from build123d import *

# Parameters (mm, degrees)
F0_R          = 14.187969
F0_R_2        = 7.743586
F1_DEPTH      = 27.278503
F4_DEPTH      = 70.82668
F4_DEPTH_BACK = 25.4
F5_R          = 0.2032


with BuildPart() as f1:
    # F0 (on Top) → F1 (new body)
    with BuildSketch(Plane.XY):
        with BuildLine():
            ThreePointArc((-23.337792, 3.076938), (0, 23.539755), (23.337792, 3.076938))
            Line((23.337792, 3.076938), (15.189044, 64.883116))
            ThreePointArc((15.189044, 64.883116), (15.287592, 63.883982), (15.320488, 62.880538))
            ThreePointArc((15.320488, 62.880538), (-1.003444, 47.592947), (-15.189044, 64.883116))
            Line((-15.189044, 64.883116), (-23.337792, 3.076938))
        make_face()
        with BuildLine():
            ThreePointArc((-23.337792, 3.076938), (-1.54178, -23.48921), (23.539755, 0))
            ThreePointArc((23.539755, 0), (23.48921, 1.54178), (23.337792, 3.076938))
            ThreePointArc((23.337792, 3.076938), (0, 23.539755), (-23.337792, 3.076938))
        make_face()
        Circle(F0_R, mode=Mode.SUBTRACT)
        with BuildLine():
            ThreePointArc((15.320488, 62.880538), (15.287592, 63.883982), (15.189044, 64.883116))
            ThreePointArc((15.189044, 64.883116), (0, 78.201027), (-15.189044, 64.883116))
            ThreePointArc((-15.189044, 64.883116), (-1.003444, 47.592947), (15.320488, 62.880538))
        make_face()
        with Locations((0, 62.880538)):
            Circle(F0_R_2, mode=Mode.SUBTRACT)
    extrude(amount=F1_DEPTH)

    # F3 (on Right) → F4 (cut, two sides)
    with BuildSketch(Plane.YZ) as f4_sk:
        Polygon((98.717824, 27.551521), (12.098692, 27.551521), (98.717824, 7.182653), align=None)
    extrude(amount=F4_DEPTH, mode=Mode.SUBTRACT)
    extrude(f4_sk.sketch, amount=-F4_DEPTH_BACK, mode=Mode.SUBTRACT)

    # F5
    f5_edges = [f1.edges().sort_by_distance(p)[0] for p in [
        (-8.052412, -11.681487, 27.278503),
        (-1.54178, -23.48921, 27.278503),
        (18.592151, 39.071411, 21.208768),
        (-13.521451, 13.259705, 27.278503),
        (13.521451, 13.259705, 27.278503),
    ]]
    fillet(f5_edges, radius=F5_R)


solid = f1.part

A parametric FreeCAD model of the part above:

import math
import FreeCAD as App
import Part
import Sketcher

V = App.Vector
Q = App.Units.Quantity


def edges_at(feature, points):
    """Names of the edges that pass closest to the given points."""
    edges = feature.Shape.Edges
    near = lambda p: min(range(len(edges)), key=lambda i: edges[i].distToShape(Part.Vertex(*p))[0])
    return sorted({f"Edge{near(p) + 1}" for p in points})


def add_polygon(sketch, points):
    """Adds a closed chain of lines whose ends are joined by coincident constraints."""
    first, n = sketch.GeometryCount, len(points)
    for a, b in zip(points, points[1:] + points[:1]):
        sketch.addGeometry(Part.LineSegment(App.Vector(*a, 0), App.Vector(*b, 0)), False)
    for i in range(n):
        sketch.addConstraint(Sketcher.Constraint("Coincident", first + i, 2, first + (i + 1) % n, 1))

doc = App.newDocument("Part")
body = doc.addObject("PartDesign::Body", "Body")

# Sketch on XY plane
sketch1 = body.newObject("Sketcher::SketchObject", "Sketch")
sketch1.AttachmentSupport = (doc.getObject("XY_Plane"), [""])
sketch1.MapMode = "FlatFace"
sketch1.addGeometry(Part.LineSegment(V(23.337792, 3.076938, 0), V(15.189044, 64.883116, 0)), False)
sketch1.addGeometry(Part.ArcOfCircle(Part.Circle(V(0, 62.880538, 0), V(0, 0, 1), 15.320489), math.radians(7.510761), math.radians(172.489239)), False)
sketch1.addGeometry(Part.LineSegment(V(-15.189044, 64.883116, 0), V(-23.337792, 3.076938, 0)), False)
sketch1.addGeometry(Part.ArcOfCircle(Part.Circle(V(0, 0, 0), V(0, 0, 1), 23.539755), math.radians(172.489239), math.radians(360)), False)
sketch1.addGeometry(Part.ArcOfCircle(Part.Circle(V(-0.000022, 0.000001, 0), V(0, 0, 1), 23.539777), math.radians(-0.000003), math.radians(7.510751)), False)
sketch1.addGeometry(Part.Circle(V(0, 0, 0), V(0, 0, 1), 14.187969), False)
sketch1.addGeometry(Part.Circle(V(0, 62.880538, 0), V(0, 0, 1), 7.743586), False)
sketch1.addConstraint(Sketcher.Constraint("Coincident", 0, 2, 1, 1))
sketch1.addConstraint(Sketcher.Constraint("Coincident", 1, 2, 2, 1))
sketch1.addConstraint(Sketcher.Constraint("Coincident", 2, 2, 3, 1))
sketch1.addConstraint(Sketcher.Constraint("Coincident", 3, 2, 4, 1))
sketch1.addConstraint(Sketcher.Constraint("Coincident", 4, 2, 0, 1))
sketch1.addConstraint(Sketcher.Constraint("Coincident", 3, 3, -1, 1))
sketch1.addConstraint(Sketcher.Constraint("Coincident", 5, 3, -1, 1))
sketch1.addConstraint(Sketcher.Constraint("Coincident", 6, 3, 1, 3))
sketch1.addConstraint(Sketcher.Constraint("PointOnObject", 1, 3, -2))
sketch1.addConstraint(Sketcher.Constraint("PointOnObject", 4, 3, -1))
sketch1.addConstraint(Sketcher.Constraint("PointOnObject", 3, 2, -1))
sketch1.addConstraint(Sketcher.Constraint("Diameter", 5, 28.375938))
sketch1.addConstraint(Sketcher.Constraint("Diameter", 6, 15.487172))
sketch1.addConstraint(Sketcher.Constraint("Radius", 1, 15.320489))
sketch1.addConstraint(Sketcher.Constraint("Radius", 3, 23.539755))
sketch1.addConstraint(Sketcher.Constraint("Radius", 4, 23.539777))
sketch1.addConstraint(Sketcher.Constraint("DistanceY", 2, 2, 6, 3, 59.8036))
sketch1.addConstraint(Sketcher.Constraint("DistanceY", -1, 1, 1, 3, 62.880538))
sketch1.addConstraint(Sketcher.Constraint("DistanceY", -1, 1, 4, 2, 3.076938))
sketch1.addConstraint(Sketcher.Constraint("DistanceX", 2, 2, 1, 2, 8.148748))
sketch1.addConstraint(Sketcher.Constraint("DistanceX", 0, 2, 3, 2, 8.350711))
pad1 = body.newObject("PartDesign::Pad", "Pad")
pad1.Profile = sketch1
pad1.Length = 27.278503

# Sketch on YZ plane
sketch2 = body.newObject("Sketcher::SketchObject", "Sketch001")
sketch2.AttachmentSupport = (doc.getObject("YZ_Plane"), [""])
sketch2.MapMode = "FlatFace"
add_polygon(sketch2, [(98.717824, 27.551521), (12.098692, 27.551521), (98.717824, 7.182653)])  # lines 0-2
sketch2.addConstraint(Sketcher.Constraint("Horizontal", 0))
sketch2.addConstraint(Sketcher.Constraint("Vertical", 2))
sketch2.addConstraint(Sketcher.Constraint("DistanceX", 0, 2, 0, 1, 86.619132))
sketch2.addConstraint(Sketcher.Constraint("DistanceY", 2, 1, 2, 2, 20.368868))
sketch2.addConstraint(Sketcher.Constraint("DistanceY", -1, 1, 0, 2, 27.551521))
sketch2.addConstraint(Sketcher.Constraint("DistanceX", -1, 1, 0, 2, 12.098692))
pocket1 = body.newObject("PartDesign::Pocket", "Pocket")
pocket1.Profile = sketch2
pocket1.Type = "ThroughAll"
pocket1.Midplane = True
doc.recompute()

fillet = body.newObject("PartDesign::Fillet", "Fillet")
fillet.Base = (pocket1, edges_at(pocket1, [
    (-8.052, -11.681, 27.279),
    (-1.542, -23.489, 27.279),
    (18.592, 39.071, 21.209),
    (-13.521, 13.26, 27.279),
    (13.521, 13.26, 27.279),
]))
fillet.Radius = Q("0.008 in")

doc.recompute()
